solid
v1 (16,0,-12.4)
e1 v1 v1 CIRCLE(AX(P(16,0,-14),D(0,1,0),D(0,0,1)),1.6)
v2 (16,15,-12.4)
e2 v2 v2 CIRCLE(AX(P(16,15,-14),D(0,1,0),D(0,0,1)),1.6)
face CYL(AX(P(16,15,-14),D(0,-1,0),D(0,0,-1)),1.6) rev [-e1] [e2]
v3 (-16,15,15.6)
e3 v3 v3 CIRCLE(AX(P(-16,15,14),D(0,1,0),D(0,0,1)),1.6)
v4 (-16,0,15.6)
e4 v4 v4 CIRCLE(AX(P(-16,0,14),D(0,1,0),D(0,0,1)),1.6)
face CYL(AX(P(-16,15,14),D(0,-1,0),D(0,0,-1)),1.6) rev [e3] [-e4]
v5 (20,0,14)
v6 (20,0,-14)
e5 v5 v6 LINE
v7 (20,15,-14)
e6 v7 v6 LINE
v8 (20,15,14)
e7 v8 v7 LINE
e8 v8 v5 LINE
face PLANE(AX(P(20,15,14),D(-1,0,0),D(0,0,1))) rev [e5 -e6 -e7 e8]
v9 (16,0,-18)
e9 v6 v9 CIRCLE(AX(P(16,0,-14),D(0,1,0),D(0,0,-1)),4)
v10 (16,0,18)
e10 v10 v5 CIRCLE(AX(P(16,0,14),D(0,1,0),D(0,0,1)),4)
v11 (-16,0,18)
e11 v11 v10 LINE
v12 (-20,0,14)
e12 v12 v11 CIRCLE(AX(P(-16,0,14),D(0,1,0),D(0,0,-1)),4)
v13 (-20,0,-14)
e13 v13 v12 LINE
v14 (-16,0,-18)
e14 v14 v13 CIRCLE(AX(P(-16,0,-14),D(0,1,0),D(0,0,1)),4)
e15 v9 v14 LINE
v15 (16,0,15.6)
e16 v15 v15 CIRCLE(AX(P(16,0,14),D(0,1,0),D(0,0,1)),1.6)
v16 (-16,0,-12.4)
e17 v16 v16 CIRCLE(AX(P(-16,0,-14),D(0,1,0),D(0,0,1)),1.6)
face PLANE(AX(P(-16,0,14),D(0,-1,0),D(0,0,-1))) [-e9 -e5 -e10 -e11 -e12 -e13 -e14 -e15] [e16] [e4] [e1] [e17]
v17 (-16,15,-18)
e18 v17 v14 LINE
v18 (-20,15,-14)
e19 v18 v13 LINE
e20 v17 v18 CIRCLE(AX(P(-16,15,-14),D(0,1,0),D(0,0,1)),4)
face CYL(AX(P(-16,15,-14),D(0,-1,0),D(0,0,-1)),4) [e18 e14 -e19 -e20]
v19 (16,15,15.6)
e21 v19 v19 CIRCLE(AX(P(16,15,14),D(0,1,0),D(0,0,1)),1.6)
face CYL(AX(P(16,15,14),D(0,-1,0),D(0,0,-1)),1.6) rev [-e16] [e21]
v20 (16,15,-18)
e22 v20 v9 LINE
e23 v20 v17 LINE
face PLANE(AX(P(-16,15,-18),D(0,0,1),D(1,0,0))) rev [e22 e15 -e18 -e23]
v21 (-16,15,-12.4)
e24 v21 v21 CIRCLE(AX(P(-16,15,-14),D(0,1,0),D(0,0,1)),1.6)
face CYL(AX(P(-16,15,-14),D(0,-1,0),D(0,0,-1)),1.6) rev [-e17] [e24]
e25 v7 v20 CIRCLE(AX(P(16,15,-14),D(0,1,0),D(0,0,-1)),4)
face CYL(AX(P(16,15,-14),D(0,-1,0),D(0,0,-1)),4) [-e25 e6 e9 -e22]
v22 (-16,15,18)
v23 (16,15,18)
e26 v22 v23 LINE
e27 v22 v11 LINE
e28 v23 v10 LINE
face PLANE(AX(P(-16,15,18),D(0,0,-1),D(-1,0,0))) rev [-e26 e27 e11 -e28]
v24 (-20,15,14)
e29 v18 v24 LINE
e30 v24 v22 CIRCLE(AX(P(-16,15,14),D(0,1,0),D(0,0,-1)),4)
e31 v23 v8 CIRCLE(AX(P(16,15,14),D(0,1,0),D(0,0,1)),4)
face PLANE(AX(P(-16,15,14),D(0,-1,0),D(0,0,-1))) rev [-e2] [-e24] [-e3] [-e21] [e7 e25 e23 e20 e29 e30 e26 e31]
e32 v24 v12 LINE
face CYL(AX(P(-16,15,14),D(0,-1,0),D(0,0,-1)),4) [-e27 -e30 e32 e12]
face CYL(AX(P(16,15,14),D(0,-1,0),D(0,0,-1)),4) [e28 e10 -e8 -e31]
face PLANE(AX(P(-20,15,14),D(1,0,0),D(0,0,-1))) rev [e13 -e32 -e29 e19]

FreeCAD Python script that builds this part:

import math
import FreeCAD as App
import Part
import Sketcher
from FreeCAD import Vector
Q = App.Units.Quantity

doc = App.newDocument("Part")
body = doc.addObject("PartDesign::Body", "Body")

sketch1 = doc.addObject("Sketcher::SketchObject", "Sketch")
body.addObject(sketch1)
sketch1.AttachmentSupport = (doc.XZ_Plane, [""])
sketch1.MapMode = "FlatFace"
sketch1.addGeometry(Part.LineSegment(Vector(-16, 18, 0), Vector(16, 18, 0)), False)
sketch1.addGeometry(Part.ArcOfCircle(Part.Circle(Vector(16, 14, 0), Vector(0, 0, 1), 4), math.radians(0), math.radians(90)), False)
sketch1.addGeometry(Part.LineSegment(Vector(20, 14, 0), Vector(20, -14, 0)), False)
sketch1.addGeometry(Part.ArcOfCircle(Part.Circle(Vector(16, -14, 0), Vector(0, 0, 1), 4), math.radians(-90), math.radians(0)), False)
sketch1.addGeometry(Part.LineSegment(Vector(16, -18, 0), Vector(-16, -18, 0)), False)
sketch1.addGeometry(Part.ArcOfCircle(Part.Circle(Vector(-16, -14, 0), Vector(0, 0, 1), 4), math.radians(180), math.radians(270)), False)
sketch1.addGeometry(Part.LineSegment(Vector(-20, -14, 0), Vector(-20, 14, 0)), False)
sketch1.addGeometry(Part.ArcOfCircle(Part.Circle(Vector(-16, 14, 0), Vector(0, 0, 1), 4), math.radians(90), math.radians(180)), False)
sketch1.addGeometry(Part.Circle(Vector(-16, 14, 0), Vector(0, 0, 1), 1.6), False)
sketch1.addGeometry(Part.Circle(Vector(16, 14, 0), Vector(0, 0, 1), 1.6), False)
sketch1.addGeometry(Part.Circle(Vector(-16, -14, 0), Vector(0, 0, 1), 1.6), False)
sketch1.addGeometry(Part.Circle(Vector(16, -14, 0), Vector(0, 0, 1), 1.6), False)
sketch1.addConstraint(Sketcher.Constraint("Tangent", 0, 2, 1, 2))
sketch1.addConstraint(Sketcher.Constraint("Tangent", 1, 1, 2, 1))
sketch1.addConstraint(Sketcher.Constraint("Tangent", 2, 2, 3, 2))
sketch1.addConstraint(Sketcher.Constraint("Tangent", 3, 1, 4, 1))
sketch1.addConstraint(Sketcher.Constraint("Tangent", 4, 2, 5, 2))
sketch1.addConstraint(Sketcher.Constraint("Tangent", 5, 1, 6, 1))
sketch1.addConstraint(Sketcher.Constraint("Tangent", 6, 2, 7, 2))
sketch1.addConstraint(Sketcher.Constraint("Tangent", 7, 1, 0, 1))
sketch1.addConstraint(Sketcher.Constraint("Horizontal", 0))
sketch1.addConstraint(Sketcher.Constraint("Vertical", 2))
sketch1.addConstraint(Sketcher.Constraint("Horizontal", 4))
sketch1.addConstraint(Sketcher.Constraint("Vertical", 6))
sketch1.addConstraint(Sketcher.Constraint("Coincident", 8, 3, 7, 3))
sketch1.addConstraint(Sketcher.Constraint("Coincident", 9, 3, 1, 3))
sketch1.addConstraint(Sketcher.Constraint("Coincident", 10, 3, 5, 3))
sketch1.addConstraint(Sketcher.Constraint("Coincident", 11, 3, 3, 3))
sketch1.addConstraint(Sketcher.Constraint("Equal", 1, 3))
sketch1.addConstraint(Sketcher.Constraint("Equal", 3, 5))
sketch1.addConstraint(Sketcher.Constraint("Equal", 5, 7))
sketch1.addConstraint(Sketcher.Constraint("Equal", 8, 9))
sketch1.addConstraint(Sketcher.Constraint("Equal", 9, 10))
sketch1.addConstraint(Sketcher.Constraint("Equal", 10, 11))
sketch1.addConstraint(Sketcher.Constraint("Symmetric", 1, 3, 5, 3, -1, 1))
sketch1.addConstraint(Sketcher.Constraint("Radius", 1, Q("4 mm")))
sketch1.addConstraint(Sketcher.Constraint("Diameter", 8, Q("3.2 mm")))
sketch1.addConstraint(Sketcher.Constraint("DistanceX", 0, 1, 0, 2, Q("32 mm")))
sketch1.addConstraint(Sketcher.Constraint("DistanceY", 2, 2, 2, 1, Q("28 mm")))
pad1 = doc.addObject("PartDesign::Pad", "Pad")
body.addObject(pad1)
pad1.Profile = sketch1
pad1.Length = 15
pad1.Reversed = True

doc.recompute()
